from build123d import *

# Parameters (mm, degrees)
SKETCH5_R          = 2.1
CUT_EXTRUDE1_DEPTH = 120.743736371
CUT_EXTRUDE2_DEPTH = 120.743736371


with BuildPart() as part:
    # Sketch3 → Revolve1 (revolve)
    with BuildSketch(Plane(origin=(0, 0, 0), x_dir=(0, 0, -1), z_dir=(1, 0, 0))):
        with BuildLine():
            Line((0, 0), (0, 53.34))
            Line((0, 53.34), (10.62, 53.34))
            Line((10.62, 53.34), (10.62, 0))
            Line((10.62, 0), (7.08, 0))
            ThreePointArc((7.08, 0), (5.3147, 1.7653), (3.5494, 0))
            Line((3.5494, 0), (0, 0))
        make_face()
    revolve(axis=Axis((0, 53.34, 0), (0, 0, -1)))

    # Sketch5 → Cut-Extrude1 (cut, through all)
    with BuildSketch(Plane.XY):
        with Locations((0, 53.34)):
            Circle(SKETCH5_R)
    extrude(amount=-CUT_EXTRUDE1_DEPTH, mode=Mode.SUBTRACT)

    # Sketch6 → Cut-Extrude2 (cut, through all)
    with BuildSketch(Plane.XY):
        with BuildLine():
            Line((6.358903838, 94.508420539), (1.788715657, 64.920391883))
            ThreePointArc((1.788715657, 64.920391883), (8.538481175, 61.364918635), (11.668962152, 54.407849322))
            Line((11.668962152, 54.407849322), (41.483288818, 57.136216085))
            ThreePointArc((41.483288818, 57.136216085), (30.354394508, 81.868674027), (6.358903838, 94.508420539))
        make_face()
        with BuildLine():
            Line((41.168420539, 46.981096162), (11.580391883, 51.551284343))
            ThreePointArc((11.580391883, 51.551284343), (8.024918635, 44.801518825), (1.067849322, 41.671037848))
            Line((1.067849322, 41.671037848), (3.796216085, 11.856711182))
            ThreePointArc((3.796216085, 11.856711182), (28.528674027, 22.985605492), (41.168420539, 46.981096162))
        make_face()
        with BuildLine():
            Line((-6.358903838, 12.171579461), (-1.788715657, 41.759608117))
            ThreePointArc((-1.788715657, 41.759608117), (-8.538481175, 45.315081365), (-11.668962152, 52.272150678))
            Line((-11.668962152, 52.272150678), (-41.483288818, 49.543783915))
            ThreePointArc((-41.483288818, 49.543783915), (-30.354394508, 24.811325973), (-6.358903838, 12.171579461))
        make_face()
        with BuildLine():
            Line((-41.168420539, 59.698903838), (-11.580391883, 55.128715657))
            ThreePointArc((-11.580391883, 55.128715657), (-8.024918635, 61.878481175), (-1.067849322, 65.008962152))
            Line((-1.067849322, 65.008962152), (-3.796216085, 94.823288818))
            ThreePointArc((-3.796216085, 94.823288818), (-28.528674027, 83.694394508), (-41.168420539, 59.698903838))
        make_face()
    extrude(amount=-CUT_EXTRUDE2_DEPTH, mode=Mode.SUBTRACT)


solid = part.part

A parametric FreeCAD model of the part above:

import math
import FreeCAD as App
import Part
import Sketcher
from FreeCAD import Vector
Q = App.Units.Quantity

doc = App.newDocument("Part")
body = doc.addObject("PartDesign::Body", "Body")

sketch1 = body.newObject("Sketcher::SketchObject", "Sketch")
sketch1.AttachmentSupport = (doc.getObject("YZ_Plane"), [""])
sketch1.MapMode = "FlatFace"
sketch1.addGeometry([
    Part.LineSegment(Vector(53.3, 0, 0), Vector(0, 0, 0)),
    Part.LineSegment(Vector(0, 0, 0), Vector(0, -3.5, 0)),
    Part.ArcOfCircle(Part.Circle(Vector(0, -5.3, 0), Vector(0, 0, 1), 1.8), math.radians(-90), math.radians(90)),
    Part.LineSegment(Vector(0, -7.1, 0), Vector(0, -10.6, 0)),
    Part.LineSegment(Vector(0, -10.6, 0), Vector(53.3, -10.6, 0)),
    Part.LineSegment(Vector(53.3, -10.6, 0), Vector(53.3, 0, 0)),
], False)
sketch1.addGeometry(Part.LineSegment(Vector(53.3, 0, 0), Vector(53.3, -10.6, 0)), True)
sketch1.addConstraint([
    Sketcher.Constraint("Coincident", 0, 2, 1, 1),
    Sketcher.Constraint("Coincident", 1, 2, 2, 2),
    Sketcher.Constraint("Coincident", 2, 1, 3, 1),
    Sketcher.Constraint("Coincident", 3, 2, 4, 1),
    Sketcher.Constraint("Coincident", 4, 2, 5, 1),
    Sketcher.Constraint("Coincident", 5, 2, 0, 1),
    Sketcher.Constraint("Horizontal", 0),
    Sketcher.Constraint("Vertical", 1),
    Sketcher.Constraint("Vertical", 3),
    Sketcher.Constraint("Horizontal", 4),
    Sketcher.Constraint("Vertical", 5),
    Sketcher.Constraint("Vertical", 6),
    Sketcher.Constraint("Coincident", 0, 2, -1, 1),
    Sketcher.Constraint("Coincident", 6, 1, 5, 2),
    Sketcher.Constraint("PointOnObject", 2, 3, -2),
    Sketcher.Constraint("PointOnObject", 2, 1, -2),
    Sketcher.Constraint("Horizontal", 3, 2, 6, 2),
    Sketcher.Constraint("DistanceX", 0, 2, 0, 1, Q("2.1 in")),
    Sketcher.Constraint("Radius", 2, Q("0.0695 in")),
    Sketcher.Constraint("DistanceY", 1, 2, 1, 1, Q("3.5494 mm")),
    Sketcher.Constraint("DistanceY", 3, 2, 3, 1, Q("3.54 mm")),
])
revolution = body.newObject("PartDesign::Revolution", "Revolution")
revolution.Profile = sketch1
revolution.ReferenceAxis = (sketch1, ["Axis0"])
revolution.Angle = 360

sketch2 = body.newObject("Sketcher::SketchObject", "Sketch001")
sketch2.AttachmentSupport = (doc.getObject("XY_Plane"), [""])
sketch2.MapMode = "FlatFace"
sketch2.addGeometry(Part.Circle(Vector(0, 53.3, 0), Vector(0, 0, 1), 2.1), False)
sketch2.addConstraint([
    Sketcher.Constraint("PointOnObject", 0, 3, -2),
    Sketcher.Constraint("DistanceY", -1, 1, 0, 3, Q("2.1 in")),
    Sketcher.Constraint("Diameter", 0, Q("4.2 mm")),
])
pocket1 = body.newObject("PartDesign::Pocket", "Pocket")
pocket1.Profile = sketch2
pocket1.Type = "ThroughAll"

sketch3 = body.newObject("Sketcher::SketchObject", "Sketch002")
sketch3.AttachmentSupport = (doc.getObject("XY_Plane"), [""])
sketch3.MapMode = "FlatFace"
sketch3.addGeometry([
    Part.LineSegment(Vector(6, 95, 0), Vector(2, 65, 0)),
    Part.ArcOfCircle(Part.Circle(Vector(0, 53, 0), Vector(0, 0, 1), 12), math.radians(5), math.radians(81)),
    Part.LineSegment(Vector(12, 54, 0), Vector(41, 57, 0)),
    Part.ArcOfCircle(Part.Circle(Vector(0, 53, 0), Vector(0, 0, 1), 42), math.radians(5), math.radians(81)),
    Part.LineSegment(Vector(41, 47, 0), Vector(12, 52, 0)),
    Part.ArcOfCircle(Part.Circle(Vector(0, 53, 0), Vector(0, 0, 1), 12), math.radians(-85), math.radians(-9)),
    Part.LineSegment(Vector(1, 42, 0), Vector(4, 12, 0)),
    Part.ArcOfCircle(Part.Circle(Vector(0, 53, 0), Vector(0, 0, 1), 42), math.radians(-85), math.radians(-9)),
    Part.LineSegment(Vector(-6, 12, 0), Vector(-2, 42, 0)),
    Part.ArcOfCircle(Part.Circle(Vector(0, 53, 0), Vector(0, 0, 1), 12), math.radians(-175), math.radians(-99)),
    Part.LineSegment(Vector(-12, 52, 0), Vector(-41, 50, 0)),
    Part.ArcOfCircle(Part.Circle(Vector(0, 53, 0), Vector(0, 0, 1), 42), math.radians(-175), math.radians(-99)),
    Part.LineSegment(Vector(-41, 60, 0), Vector(-12, 55, 0)),
    Part.ArcOfCircle(Part.Circle(Vector(0, 53, 0), Vector(0, 0, 1), 12), math.radians(95), math.radians(171)),
    Part.LineSegment(Vector(-1, 65, 0), Vector(-4, 95, 0)),
    Part.ArcOfCircle(Part.Circle(Vector(0, 53, 0), Vector(0, 0, 1), 42), math.radians(95), math.radians(171)),
], False)
sketch3.addConstraint([
    Sketcher.Constraint("Coincident", 0, 2, 1, 2),
    Sketcher.Constraint("Coincident", 1, 1, 2, 1),
    Sketcher.Constraint("Coincident", 2, 2, 3, 1),
    Sketcher.Constraint("Coincident", 3, 2, 0, 1),
    Sketcher.Constraint("Coincident", 4, 2, 5, 2),
    Sketcher.Constraint("Coincident", 5, 1, 6, 1),
    Sketcher.Constraint("Coincident", 6, 2, 7, 1),
    Sketcher.Constraint("Coincident", 7, 2, 4, 1),
    Sketcher.Constraint("Coincident", 8, 2, 9, 2),
    Sketcher.Constraint("Coincident", 9, 1, 10, 1),
    Sketcher.Constraint("Coincident", 10, 2, 11, 1),
    Sketcher.Constraint("Coincident", 11, 2, 8, 1),
    Sketcher.Constraint("Coincident", 12, 2, 13, 2),
    Sketcher.Constraint("Coincident", 13, 1, 14, 1),
    Sketcher.Constraint("Coincident", 14, 2, 15, 1),
    Sketcher.Constraint("Coincident", 15, 2, 12, 1),
    Sketcher.Constraint("Coincident", 3, 3, 1, 3),
    Sketcher.Constraint("Coincident", 5, 3, 1, 3),
    Sketcher.Constraint("Coincident", 7, 3, 1, 3),
    Sketcher.Constraint("Coincident", 9, 3, 1, 3),
    Sketcher.Constraint("Coincident", 11, 3, 1, 3),
    Sketcher.Constraint("Coincident", 13, 3, 1, 3),
    Sketcher.Constraint("Coincident", 15, 3, 1, 3),
    Sketcher.Constraint("Equal", 1, 5),
    Sketcher.Constraint("Equal", 3, 7),
    Sketcher.Constraint("Equal", 5, 9),
    Sketcher.Constraint("Equal", 7, 11),
    Sketcher.Constraint("Equal", 9, 13),
    Sketcher.Constraint("Equal", 11, 15),
    Sketcher.Constraint("PointOnObject", 1, 3, -2),
    Sketcher.Constraint("Perpendicular", 0, 4),
    Sketcher.Constraint("Perpendicular", 2, 6),
    Sketcher.Constraint("Perpendicular", 4, 8),
    Sketcher.Constraint("Perpendicular", 6, 10),
    Sketcher.Constraint("Perpendicular", 8, 12),
    Sketcher.Constraint("Perpendicular", 10, 14),
    Sketcher.Constraint("DistanceY", -1, 1, 1, 3, Q("2.1 in")),
    Sketcher.Constraint("Radius", 1, Q("11.717721 mm")),
    Sketcher.Constraint("Radius", 3, Q("41.656626 mm")),
    Sketcher.Constraint("DistanceY", -1, 1, 0, 2, Q("64.920392 mm")),
    Sketcher.Constraint("DistanceY", -1, 1, 1, 1, Q("54.407849 mm")),
    Sketcher.Constraint("DistanceX", -1, 1, 2, 2, Q("41.483289 mm")),
    Sketcher.Constraint("DistanceY", -1, 1, 3, 2, Q("94.508421 mm")),
    Sketcher.Constraint("DistanceX", -1, 1, 4, 2, Q("11.580392 mm")),
    Sketcher.Constraint("DistanceX", -1, 1, 5, 1, Q("1.067849 mm")),
    Sketcher.Constraint("DistanceY", -1, 1, 8, 2, Q("41.759608 mm")),
    Sketcher.Constraint("DistanceY", -1, 1, 9, 1, Q("52.272151 mm")),
    Sketcher.Constraint("DistanceX", 12, 2, -1, 1, Q("11.580392 mm")),
    Sketcher.Constraint("DistanceX", 13, 1, -1, 1, Q("1.067849 mm")),
])
pocket2 = body.newObject("PartDesign::Pocket", "Pocket001")
pocket2.Profile = sketch3
pocket2.Type = "ThroughAll"

doc.recompute()
